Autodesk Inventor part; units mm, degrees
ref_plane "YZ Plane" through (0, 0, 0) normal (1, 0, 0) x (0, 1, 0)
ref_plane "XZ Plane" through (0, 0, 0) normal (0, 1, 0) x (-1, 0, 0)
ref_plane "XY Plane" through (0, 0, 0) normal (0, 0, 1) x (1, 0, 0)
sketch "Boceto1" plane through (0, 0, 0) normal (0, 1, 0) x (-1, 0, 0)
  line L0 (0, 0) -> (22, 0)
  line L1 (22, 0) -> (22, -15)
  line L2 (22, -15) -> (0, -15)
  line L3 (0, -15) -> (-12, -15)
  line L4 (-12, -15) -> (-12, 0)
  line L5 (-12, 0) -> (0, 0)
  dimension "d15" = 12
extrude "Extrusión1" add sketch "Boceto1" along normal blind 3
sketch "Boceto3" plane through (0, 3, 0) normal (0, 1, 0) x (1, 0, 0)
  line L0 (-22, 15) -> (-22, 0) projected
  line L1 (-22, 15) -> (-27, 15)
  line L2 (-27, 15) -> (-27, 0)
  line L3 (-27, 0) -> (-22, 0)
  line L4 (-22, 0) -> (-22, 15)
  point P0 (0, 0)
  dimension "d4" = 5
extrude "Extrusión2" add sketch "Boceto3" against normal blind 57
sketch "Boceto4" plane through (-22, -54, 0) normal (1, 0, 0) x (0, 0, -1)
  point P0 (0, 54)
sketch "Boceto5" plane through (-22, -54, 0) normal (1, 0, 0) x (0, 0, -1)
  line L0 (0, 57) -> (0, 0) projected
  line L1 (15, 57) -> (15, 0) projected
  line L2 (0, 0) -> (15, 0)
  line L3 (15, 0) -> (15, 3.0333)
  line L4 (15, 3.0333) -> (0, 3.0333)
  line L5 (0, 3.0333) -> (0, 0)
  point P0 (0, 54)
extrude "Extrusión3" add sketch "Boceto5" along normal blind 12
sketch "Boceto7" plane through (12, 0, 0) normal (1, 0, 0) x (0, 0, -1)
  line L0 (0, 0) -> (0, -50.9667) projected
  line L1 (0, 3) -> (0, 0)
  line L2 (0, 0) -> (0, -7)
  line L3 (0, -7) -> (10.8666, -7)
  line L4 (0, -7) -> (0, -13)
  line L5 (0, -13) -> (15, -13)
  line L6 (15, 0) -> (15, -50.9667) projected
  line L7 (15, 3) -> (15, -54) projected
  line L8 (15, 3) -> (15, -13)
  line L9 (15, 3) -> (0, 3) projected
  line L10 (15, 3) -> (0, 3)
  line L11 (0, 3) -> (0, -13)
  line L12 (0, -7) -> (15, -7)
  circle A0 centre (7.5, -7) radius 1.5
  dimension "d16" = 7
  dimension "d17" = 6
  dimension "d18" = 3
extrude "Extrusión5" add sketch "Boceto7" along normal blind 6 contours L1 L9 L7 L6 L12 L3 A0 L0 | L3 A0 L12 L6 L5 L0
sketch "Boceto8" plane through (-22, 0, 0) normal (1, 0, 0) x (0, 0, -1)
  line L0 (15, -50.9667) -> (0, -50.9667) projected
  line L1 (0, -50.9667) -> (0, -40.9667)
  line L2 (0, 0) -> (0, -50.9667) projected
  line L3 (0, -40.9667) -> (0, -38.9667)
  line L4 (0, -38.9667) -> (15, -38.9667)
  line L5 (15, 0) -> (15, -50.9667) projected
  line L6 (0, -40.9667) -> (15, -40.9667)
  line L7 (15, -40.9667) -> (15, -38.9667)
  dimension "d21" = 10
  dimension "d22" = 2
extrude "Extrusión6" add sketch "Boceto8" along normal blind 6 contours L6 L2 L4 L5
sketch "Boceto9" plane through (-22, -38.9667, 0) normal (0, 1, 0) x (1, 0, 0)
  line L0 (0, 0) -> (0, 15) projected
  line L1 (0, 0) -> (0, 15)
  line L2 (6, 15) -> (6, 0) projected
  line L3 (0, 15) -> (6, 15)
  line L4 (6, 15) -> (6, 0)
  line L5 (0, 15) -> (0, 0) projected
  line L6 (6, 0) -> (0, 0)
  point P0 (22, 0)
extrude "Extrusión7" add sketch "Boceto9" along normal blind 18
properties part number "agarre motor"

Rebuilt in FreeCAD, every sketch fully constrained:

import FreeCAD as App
import Part
import Sketcher


def add_polygon(sketch, points):
    """Adds a closed chain of lines whose ends are joined by coincident constraints."""
    first, n = sketch.GeometryCount, len(points)
    for a, b in zip(points, points[1:] + points[:1]):
        sketch.addGeometry(Part.LineSegment(App.Vector(*a, 0), App.Vector(*b, 0)), False)
    for i in range(n):
        sketch.addConstraint(Sketcher.Constraint("Coincident", first + i, 2, first + (i + 1) % n, 1))

doc = App.newDocument("Part")
body = doc.addObject("PartDesign::Body", "Body")

sketch1 = body.newObject("Sketcher::SketchObject", "Sketch")
sketch1.AttachmentSupport = (doc.getObject("XZ_Plane"), [""])
sketch1.MapMode = "FlatFace"
add_polygon(sketch1, [(-22, 0), (12, 0), (12, -15), (-22, -15)])
sketch1.addConstraint(Sketcher.Constraint("Horizontal", 0))
sketch1.addConstraint(Sketcher.Constraint("Vertical", 1))
sketch1.addConstraint(Sketcher.Constraint("Horizontal", 2))
sketch1.addConstraint(Sketcher.Constraint("Vertical", 3))
sketch1.addConstraint(Sketcher.Constraint("PointOnObject", 0, 2, -1))
sketch1.addConstraint(Sketcher.Constraint("DistanceX", -1, 1, 0, 2, 12.0))
sketch1.addConstraint(Sketcher.Constraint("DistanceX", 0, 1, 0, 2, 34.0))
sketch1.addConstraint(Sketcher.Constraint("DistanceY", 1, 2, 1, 1, 15.0))
pad1 = body.newObject("PartDesign::Pad", "Pad")
pad1.Profile = sketch1
pad1.Length = 3
pad1.Reversed = True

sketch2 = body.newObject("Sketcher::SketchObject", "Sketch001")
sketch2.AttachmentSupport = (doc.getObject("XZ_Plane"), [""])
sketch2.MapMode = "FlatFace"
sketch2.AttachmentOffset = App.Placement(App.Vector(0, 0, -3), App.Rotation())
add_polygon(sketch2, [(-22, 0), (-22, -15), (-27, -15), (-27, 0)])
sketch2.addConstraint(Sketcher.Constraint("Vertical", 0))
sketch2.addConstraint(Sketcher.Constraint("Horizontal", 1))
sketch2.addConstraint(Sketcher.Constraint("Vertical", 2))
sketch2.addConstraint(Sketcher.Constraint("Horizontal", 3))
sketch2.addConstraint(Sketcher.Constraint("PointOnObject", 2, 2, -1))
sketch2.addConstraint(Sketcher.Constraint("DistanceX", 1, 2, 1, 1, 5.0))
sketch2.addConstraint(Sketcher.Constraint("DistanceY", 0, 2, 0, 1, 15.0))
sketch2.addConstraint(Sketcher.Constraint("DistanceX", 0, 2, -1, 1, 22.0))
pad2 = body.newObject("PartDesign::Pad", "Pad001")
pad2.Profile = sketch2
pad2.Length = 57

sketch3 = body.newObject("Sketcher::SketchObject", "Sketch002")
sketch3.AttachmentSupport = (doc.getObject("YZ_Plane"), [""])
sketch3.MapMode = "FlatFace"
sketch3.AttachmentOffset = App.Placement(App.Vector(0, 0, -22), App.Rotation())
add_polygon(sketch3, [(-50.9667, -15), (-50.9667, 0), (-54, 0), (-54, -15)])
sketch3.addConstraint(Sketcher.Constraint("Vertical", 0))
sketch3.addConstraint(Sketcher.Constraint("Horizontal", 1))
sketch3.addConstraint(Sketcher.Constraint("Vertical", 2))
sketch3.addConstraint(Sketcher.Constraint("Horizontal", 3))
sketch3.addConstraint(Sketcher.Constraint("PointOnObject", 0, 2, -1))
sketch3.addConstraint(Sketcher.Constraint("DistanceY", 0, 1, 0, 2, 15.0))
sketch3.addConstraint(Sketcher.Constraint("DistanceX", 1, 2, -1, 1, 54.0))
sketch3.addConstraint(Sketcher.Constraint("DistanceX", 1, 2, 1, 1, 3.0333))
pad3 = body.newObject("PartDesign::Pad", "Pad002")
pad3.Profile = sketch3
pad3.Length = 12

sketch4 = body.newObject("Sketcher::SketchObject", "Sketch003")
sketch4.AttachmentSupport = (doc.getObject("YZ_Plane"), [""])
sketch4.MapMode = "FlatFace"
sketch4.AttachmentOffset = App.Placement(App.Vector(0, 0, 12), App.Rotation())
add_polygon(sketch4, [(3, 0), (-13, 0), (-13, -15), (3, -15)])
sketch4.addGeometry(Part.Circle(App.Vector(-7, -7.5, 0), App.Vector(0, 0, 1), 1.5), False)
sketch4.addConstraint(Sketcher.Constraint("Horizontal", 0))
sketch4.addConstraint(Sketcher.Constraint("Vertical", 1))
sketch4.addConstraint(Sketcher.Constraint("Horizontal", 2))
sketch4.addConstraint(Sketcher.Constraint("Vertical", 3))
sketch4.addConstraint(Sketcher.Constraint("PointOnObject", 0, 2, -1))
sketch4.addConstraint(Sketcher.Constraint("Diameter", 4, 3.0))
sketch4.addConstraint(Sketcher.Constraint("DistanceX", 4, 3, -1, 1, 7.0))
sketch4.addConstraint(Sketcher.Constraint("DistanceX", -1, 1, 2, 2, 3.0))
sketch4.addConstraint(Sketcher.Constraint("DistanceX", 0, 2, 4, 3, 6.0))
sketch4.addConstraint(Sketcher.Constraint("DistanceY", 1, 2, 1, 1, 15.0))
sketch4.addConstraint(Sketcher.Constraint("DistanceY", 4, 3, -1, 1, 7.5))
pad4 = body.newObject("PartDesign::Pad", "Pad003")
pad4.Profile = sketch4
pad4.Length = 6

sketch5 = body.newObject("Sketcher::SketchObject", "Sketch004")
sketch5.AttachmentSupport = (doc.getObject("YZ_Plane"), [""])
sketch5.MapMode = "FlatFace"
sketch5.AttachmentOffset = App.Placement(App.Vector(0, 0, -22), App.Rotation())
add_polygon(sketch5, [(-40.9667, 0), (-40.9667, -15), (-38.9667, -15), (-38.9667, 0)])
sketch5.addConstraint(Sketcher.Constraint("Vertical", 0))
sketch5.addConstraint(Sketcher.Constraint("Horizontal", 1))
sketch5.addConstraint(Sketcher.Constraint("Vertical", 2))
sketch5.addConstraint(Sketcher.Constraint("Horizontal", 3))
sketch5.addConstraint(Sketcher.Constraint("PointOnObject", 2, 2, -1))
sketch5.addConstraint(Sketcher.Constraint("DistanceX", 1, 1, 1, 2, 2.0))
sketch5.addConstraint(Sketcher.Constraint("DistanceY", 0, 2, 0, 1, 15.0))
sketch5.addConstraint(Sketcher.Constraint("DistanceX", 0, 2, -1, 1, 40.9667))
pad5 = body.newObject("PartDesign::Pad", "Pad004")
pad5.Profile = sketch5
pad5.Length = 6

sketch6 = body.newObject("Sketcher::SketchObject", "Sketch005")
sketch6.AttachmentSupport = (doc.getObject("XZ_Plane"), [""])
sketch6.MapMode = "FlatFace"
sketch6.AttachmentOffset = App.Placement(App.Vector(0, 0, 38.9667), App.Rotation())
add_polygon(sketch6, [(-22, -15), (-22, 0), (-16, 0), (-16, -15)])
sketch6.addConstraint(Sketcher.Constraint("Vertical", 0))
sketch6.addConstraint(Sketcher.Constraint("Horizontal", 1))
sketch6.addConstraint(Sketcher.Constraint("Vertical", 2))
sketch6.addConstraint(Sketcher.Constraint("Horizontal", 3))
sketch6.addConstraint(Sketcher.Constraint("PointOnObject", 0, 2, -1))
sketch6.addConstraint(Sketcher.Constraint("DistanceX", 1, 1, 1, 2, 6.0))
sketch6.addConstraint(Sketcher.Constraint("DistanceY", 0, 1, 0, 2, 15.0))
sketch6.addConstraint(Sketcher.Constraint("DistanceX", 0, 2, -1, 1, 22.0))
pad6 = body.newObject("PartDesign::Pad", "Pad005")
pad6.Profile = sketch6
pad6.Length = 18
pad6.Reversed = True

doc.recompute()
